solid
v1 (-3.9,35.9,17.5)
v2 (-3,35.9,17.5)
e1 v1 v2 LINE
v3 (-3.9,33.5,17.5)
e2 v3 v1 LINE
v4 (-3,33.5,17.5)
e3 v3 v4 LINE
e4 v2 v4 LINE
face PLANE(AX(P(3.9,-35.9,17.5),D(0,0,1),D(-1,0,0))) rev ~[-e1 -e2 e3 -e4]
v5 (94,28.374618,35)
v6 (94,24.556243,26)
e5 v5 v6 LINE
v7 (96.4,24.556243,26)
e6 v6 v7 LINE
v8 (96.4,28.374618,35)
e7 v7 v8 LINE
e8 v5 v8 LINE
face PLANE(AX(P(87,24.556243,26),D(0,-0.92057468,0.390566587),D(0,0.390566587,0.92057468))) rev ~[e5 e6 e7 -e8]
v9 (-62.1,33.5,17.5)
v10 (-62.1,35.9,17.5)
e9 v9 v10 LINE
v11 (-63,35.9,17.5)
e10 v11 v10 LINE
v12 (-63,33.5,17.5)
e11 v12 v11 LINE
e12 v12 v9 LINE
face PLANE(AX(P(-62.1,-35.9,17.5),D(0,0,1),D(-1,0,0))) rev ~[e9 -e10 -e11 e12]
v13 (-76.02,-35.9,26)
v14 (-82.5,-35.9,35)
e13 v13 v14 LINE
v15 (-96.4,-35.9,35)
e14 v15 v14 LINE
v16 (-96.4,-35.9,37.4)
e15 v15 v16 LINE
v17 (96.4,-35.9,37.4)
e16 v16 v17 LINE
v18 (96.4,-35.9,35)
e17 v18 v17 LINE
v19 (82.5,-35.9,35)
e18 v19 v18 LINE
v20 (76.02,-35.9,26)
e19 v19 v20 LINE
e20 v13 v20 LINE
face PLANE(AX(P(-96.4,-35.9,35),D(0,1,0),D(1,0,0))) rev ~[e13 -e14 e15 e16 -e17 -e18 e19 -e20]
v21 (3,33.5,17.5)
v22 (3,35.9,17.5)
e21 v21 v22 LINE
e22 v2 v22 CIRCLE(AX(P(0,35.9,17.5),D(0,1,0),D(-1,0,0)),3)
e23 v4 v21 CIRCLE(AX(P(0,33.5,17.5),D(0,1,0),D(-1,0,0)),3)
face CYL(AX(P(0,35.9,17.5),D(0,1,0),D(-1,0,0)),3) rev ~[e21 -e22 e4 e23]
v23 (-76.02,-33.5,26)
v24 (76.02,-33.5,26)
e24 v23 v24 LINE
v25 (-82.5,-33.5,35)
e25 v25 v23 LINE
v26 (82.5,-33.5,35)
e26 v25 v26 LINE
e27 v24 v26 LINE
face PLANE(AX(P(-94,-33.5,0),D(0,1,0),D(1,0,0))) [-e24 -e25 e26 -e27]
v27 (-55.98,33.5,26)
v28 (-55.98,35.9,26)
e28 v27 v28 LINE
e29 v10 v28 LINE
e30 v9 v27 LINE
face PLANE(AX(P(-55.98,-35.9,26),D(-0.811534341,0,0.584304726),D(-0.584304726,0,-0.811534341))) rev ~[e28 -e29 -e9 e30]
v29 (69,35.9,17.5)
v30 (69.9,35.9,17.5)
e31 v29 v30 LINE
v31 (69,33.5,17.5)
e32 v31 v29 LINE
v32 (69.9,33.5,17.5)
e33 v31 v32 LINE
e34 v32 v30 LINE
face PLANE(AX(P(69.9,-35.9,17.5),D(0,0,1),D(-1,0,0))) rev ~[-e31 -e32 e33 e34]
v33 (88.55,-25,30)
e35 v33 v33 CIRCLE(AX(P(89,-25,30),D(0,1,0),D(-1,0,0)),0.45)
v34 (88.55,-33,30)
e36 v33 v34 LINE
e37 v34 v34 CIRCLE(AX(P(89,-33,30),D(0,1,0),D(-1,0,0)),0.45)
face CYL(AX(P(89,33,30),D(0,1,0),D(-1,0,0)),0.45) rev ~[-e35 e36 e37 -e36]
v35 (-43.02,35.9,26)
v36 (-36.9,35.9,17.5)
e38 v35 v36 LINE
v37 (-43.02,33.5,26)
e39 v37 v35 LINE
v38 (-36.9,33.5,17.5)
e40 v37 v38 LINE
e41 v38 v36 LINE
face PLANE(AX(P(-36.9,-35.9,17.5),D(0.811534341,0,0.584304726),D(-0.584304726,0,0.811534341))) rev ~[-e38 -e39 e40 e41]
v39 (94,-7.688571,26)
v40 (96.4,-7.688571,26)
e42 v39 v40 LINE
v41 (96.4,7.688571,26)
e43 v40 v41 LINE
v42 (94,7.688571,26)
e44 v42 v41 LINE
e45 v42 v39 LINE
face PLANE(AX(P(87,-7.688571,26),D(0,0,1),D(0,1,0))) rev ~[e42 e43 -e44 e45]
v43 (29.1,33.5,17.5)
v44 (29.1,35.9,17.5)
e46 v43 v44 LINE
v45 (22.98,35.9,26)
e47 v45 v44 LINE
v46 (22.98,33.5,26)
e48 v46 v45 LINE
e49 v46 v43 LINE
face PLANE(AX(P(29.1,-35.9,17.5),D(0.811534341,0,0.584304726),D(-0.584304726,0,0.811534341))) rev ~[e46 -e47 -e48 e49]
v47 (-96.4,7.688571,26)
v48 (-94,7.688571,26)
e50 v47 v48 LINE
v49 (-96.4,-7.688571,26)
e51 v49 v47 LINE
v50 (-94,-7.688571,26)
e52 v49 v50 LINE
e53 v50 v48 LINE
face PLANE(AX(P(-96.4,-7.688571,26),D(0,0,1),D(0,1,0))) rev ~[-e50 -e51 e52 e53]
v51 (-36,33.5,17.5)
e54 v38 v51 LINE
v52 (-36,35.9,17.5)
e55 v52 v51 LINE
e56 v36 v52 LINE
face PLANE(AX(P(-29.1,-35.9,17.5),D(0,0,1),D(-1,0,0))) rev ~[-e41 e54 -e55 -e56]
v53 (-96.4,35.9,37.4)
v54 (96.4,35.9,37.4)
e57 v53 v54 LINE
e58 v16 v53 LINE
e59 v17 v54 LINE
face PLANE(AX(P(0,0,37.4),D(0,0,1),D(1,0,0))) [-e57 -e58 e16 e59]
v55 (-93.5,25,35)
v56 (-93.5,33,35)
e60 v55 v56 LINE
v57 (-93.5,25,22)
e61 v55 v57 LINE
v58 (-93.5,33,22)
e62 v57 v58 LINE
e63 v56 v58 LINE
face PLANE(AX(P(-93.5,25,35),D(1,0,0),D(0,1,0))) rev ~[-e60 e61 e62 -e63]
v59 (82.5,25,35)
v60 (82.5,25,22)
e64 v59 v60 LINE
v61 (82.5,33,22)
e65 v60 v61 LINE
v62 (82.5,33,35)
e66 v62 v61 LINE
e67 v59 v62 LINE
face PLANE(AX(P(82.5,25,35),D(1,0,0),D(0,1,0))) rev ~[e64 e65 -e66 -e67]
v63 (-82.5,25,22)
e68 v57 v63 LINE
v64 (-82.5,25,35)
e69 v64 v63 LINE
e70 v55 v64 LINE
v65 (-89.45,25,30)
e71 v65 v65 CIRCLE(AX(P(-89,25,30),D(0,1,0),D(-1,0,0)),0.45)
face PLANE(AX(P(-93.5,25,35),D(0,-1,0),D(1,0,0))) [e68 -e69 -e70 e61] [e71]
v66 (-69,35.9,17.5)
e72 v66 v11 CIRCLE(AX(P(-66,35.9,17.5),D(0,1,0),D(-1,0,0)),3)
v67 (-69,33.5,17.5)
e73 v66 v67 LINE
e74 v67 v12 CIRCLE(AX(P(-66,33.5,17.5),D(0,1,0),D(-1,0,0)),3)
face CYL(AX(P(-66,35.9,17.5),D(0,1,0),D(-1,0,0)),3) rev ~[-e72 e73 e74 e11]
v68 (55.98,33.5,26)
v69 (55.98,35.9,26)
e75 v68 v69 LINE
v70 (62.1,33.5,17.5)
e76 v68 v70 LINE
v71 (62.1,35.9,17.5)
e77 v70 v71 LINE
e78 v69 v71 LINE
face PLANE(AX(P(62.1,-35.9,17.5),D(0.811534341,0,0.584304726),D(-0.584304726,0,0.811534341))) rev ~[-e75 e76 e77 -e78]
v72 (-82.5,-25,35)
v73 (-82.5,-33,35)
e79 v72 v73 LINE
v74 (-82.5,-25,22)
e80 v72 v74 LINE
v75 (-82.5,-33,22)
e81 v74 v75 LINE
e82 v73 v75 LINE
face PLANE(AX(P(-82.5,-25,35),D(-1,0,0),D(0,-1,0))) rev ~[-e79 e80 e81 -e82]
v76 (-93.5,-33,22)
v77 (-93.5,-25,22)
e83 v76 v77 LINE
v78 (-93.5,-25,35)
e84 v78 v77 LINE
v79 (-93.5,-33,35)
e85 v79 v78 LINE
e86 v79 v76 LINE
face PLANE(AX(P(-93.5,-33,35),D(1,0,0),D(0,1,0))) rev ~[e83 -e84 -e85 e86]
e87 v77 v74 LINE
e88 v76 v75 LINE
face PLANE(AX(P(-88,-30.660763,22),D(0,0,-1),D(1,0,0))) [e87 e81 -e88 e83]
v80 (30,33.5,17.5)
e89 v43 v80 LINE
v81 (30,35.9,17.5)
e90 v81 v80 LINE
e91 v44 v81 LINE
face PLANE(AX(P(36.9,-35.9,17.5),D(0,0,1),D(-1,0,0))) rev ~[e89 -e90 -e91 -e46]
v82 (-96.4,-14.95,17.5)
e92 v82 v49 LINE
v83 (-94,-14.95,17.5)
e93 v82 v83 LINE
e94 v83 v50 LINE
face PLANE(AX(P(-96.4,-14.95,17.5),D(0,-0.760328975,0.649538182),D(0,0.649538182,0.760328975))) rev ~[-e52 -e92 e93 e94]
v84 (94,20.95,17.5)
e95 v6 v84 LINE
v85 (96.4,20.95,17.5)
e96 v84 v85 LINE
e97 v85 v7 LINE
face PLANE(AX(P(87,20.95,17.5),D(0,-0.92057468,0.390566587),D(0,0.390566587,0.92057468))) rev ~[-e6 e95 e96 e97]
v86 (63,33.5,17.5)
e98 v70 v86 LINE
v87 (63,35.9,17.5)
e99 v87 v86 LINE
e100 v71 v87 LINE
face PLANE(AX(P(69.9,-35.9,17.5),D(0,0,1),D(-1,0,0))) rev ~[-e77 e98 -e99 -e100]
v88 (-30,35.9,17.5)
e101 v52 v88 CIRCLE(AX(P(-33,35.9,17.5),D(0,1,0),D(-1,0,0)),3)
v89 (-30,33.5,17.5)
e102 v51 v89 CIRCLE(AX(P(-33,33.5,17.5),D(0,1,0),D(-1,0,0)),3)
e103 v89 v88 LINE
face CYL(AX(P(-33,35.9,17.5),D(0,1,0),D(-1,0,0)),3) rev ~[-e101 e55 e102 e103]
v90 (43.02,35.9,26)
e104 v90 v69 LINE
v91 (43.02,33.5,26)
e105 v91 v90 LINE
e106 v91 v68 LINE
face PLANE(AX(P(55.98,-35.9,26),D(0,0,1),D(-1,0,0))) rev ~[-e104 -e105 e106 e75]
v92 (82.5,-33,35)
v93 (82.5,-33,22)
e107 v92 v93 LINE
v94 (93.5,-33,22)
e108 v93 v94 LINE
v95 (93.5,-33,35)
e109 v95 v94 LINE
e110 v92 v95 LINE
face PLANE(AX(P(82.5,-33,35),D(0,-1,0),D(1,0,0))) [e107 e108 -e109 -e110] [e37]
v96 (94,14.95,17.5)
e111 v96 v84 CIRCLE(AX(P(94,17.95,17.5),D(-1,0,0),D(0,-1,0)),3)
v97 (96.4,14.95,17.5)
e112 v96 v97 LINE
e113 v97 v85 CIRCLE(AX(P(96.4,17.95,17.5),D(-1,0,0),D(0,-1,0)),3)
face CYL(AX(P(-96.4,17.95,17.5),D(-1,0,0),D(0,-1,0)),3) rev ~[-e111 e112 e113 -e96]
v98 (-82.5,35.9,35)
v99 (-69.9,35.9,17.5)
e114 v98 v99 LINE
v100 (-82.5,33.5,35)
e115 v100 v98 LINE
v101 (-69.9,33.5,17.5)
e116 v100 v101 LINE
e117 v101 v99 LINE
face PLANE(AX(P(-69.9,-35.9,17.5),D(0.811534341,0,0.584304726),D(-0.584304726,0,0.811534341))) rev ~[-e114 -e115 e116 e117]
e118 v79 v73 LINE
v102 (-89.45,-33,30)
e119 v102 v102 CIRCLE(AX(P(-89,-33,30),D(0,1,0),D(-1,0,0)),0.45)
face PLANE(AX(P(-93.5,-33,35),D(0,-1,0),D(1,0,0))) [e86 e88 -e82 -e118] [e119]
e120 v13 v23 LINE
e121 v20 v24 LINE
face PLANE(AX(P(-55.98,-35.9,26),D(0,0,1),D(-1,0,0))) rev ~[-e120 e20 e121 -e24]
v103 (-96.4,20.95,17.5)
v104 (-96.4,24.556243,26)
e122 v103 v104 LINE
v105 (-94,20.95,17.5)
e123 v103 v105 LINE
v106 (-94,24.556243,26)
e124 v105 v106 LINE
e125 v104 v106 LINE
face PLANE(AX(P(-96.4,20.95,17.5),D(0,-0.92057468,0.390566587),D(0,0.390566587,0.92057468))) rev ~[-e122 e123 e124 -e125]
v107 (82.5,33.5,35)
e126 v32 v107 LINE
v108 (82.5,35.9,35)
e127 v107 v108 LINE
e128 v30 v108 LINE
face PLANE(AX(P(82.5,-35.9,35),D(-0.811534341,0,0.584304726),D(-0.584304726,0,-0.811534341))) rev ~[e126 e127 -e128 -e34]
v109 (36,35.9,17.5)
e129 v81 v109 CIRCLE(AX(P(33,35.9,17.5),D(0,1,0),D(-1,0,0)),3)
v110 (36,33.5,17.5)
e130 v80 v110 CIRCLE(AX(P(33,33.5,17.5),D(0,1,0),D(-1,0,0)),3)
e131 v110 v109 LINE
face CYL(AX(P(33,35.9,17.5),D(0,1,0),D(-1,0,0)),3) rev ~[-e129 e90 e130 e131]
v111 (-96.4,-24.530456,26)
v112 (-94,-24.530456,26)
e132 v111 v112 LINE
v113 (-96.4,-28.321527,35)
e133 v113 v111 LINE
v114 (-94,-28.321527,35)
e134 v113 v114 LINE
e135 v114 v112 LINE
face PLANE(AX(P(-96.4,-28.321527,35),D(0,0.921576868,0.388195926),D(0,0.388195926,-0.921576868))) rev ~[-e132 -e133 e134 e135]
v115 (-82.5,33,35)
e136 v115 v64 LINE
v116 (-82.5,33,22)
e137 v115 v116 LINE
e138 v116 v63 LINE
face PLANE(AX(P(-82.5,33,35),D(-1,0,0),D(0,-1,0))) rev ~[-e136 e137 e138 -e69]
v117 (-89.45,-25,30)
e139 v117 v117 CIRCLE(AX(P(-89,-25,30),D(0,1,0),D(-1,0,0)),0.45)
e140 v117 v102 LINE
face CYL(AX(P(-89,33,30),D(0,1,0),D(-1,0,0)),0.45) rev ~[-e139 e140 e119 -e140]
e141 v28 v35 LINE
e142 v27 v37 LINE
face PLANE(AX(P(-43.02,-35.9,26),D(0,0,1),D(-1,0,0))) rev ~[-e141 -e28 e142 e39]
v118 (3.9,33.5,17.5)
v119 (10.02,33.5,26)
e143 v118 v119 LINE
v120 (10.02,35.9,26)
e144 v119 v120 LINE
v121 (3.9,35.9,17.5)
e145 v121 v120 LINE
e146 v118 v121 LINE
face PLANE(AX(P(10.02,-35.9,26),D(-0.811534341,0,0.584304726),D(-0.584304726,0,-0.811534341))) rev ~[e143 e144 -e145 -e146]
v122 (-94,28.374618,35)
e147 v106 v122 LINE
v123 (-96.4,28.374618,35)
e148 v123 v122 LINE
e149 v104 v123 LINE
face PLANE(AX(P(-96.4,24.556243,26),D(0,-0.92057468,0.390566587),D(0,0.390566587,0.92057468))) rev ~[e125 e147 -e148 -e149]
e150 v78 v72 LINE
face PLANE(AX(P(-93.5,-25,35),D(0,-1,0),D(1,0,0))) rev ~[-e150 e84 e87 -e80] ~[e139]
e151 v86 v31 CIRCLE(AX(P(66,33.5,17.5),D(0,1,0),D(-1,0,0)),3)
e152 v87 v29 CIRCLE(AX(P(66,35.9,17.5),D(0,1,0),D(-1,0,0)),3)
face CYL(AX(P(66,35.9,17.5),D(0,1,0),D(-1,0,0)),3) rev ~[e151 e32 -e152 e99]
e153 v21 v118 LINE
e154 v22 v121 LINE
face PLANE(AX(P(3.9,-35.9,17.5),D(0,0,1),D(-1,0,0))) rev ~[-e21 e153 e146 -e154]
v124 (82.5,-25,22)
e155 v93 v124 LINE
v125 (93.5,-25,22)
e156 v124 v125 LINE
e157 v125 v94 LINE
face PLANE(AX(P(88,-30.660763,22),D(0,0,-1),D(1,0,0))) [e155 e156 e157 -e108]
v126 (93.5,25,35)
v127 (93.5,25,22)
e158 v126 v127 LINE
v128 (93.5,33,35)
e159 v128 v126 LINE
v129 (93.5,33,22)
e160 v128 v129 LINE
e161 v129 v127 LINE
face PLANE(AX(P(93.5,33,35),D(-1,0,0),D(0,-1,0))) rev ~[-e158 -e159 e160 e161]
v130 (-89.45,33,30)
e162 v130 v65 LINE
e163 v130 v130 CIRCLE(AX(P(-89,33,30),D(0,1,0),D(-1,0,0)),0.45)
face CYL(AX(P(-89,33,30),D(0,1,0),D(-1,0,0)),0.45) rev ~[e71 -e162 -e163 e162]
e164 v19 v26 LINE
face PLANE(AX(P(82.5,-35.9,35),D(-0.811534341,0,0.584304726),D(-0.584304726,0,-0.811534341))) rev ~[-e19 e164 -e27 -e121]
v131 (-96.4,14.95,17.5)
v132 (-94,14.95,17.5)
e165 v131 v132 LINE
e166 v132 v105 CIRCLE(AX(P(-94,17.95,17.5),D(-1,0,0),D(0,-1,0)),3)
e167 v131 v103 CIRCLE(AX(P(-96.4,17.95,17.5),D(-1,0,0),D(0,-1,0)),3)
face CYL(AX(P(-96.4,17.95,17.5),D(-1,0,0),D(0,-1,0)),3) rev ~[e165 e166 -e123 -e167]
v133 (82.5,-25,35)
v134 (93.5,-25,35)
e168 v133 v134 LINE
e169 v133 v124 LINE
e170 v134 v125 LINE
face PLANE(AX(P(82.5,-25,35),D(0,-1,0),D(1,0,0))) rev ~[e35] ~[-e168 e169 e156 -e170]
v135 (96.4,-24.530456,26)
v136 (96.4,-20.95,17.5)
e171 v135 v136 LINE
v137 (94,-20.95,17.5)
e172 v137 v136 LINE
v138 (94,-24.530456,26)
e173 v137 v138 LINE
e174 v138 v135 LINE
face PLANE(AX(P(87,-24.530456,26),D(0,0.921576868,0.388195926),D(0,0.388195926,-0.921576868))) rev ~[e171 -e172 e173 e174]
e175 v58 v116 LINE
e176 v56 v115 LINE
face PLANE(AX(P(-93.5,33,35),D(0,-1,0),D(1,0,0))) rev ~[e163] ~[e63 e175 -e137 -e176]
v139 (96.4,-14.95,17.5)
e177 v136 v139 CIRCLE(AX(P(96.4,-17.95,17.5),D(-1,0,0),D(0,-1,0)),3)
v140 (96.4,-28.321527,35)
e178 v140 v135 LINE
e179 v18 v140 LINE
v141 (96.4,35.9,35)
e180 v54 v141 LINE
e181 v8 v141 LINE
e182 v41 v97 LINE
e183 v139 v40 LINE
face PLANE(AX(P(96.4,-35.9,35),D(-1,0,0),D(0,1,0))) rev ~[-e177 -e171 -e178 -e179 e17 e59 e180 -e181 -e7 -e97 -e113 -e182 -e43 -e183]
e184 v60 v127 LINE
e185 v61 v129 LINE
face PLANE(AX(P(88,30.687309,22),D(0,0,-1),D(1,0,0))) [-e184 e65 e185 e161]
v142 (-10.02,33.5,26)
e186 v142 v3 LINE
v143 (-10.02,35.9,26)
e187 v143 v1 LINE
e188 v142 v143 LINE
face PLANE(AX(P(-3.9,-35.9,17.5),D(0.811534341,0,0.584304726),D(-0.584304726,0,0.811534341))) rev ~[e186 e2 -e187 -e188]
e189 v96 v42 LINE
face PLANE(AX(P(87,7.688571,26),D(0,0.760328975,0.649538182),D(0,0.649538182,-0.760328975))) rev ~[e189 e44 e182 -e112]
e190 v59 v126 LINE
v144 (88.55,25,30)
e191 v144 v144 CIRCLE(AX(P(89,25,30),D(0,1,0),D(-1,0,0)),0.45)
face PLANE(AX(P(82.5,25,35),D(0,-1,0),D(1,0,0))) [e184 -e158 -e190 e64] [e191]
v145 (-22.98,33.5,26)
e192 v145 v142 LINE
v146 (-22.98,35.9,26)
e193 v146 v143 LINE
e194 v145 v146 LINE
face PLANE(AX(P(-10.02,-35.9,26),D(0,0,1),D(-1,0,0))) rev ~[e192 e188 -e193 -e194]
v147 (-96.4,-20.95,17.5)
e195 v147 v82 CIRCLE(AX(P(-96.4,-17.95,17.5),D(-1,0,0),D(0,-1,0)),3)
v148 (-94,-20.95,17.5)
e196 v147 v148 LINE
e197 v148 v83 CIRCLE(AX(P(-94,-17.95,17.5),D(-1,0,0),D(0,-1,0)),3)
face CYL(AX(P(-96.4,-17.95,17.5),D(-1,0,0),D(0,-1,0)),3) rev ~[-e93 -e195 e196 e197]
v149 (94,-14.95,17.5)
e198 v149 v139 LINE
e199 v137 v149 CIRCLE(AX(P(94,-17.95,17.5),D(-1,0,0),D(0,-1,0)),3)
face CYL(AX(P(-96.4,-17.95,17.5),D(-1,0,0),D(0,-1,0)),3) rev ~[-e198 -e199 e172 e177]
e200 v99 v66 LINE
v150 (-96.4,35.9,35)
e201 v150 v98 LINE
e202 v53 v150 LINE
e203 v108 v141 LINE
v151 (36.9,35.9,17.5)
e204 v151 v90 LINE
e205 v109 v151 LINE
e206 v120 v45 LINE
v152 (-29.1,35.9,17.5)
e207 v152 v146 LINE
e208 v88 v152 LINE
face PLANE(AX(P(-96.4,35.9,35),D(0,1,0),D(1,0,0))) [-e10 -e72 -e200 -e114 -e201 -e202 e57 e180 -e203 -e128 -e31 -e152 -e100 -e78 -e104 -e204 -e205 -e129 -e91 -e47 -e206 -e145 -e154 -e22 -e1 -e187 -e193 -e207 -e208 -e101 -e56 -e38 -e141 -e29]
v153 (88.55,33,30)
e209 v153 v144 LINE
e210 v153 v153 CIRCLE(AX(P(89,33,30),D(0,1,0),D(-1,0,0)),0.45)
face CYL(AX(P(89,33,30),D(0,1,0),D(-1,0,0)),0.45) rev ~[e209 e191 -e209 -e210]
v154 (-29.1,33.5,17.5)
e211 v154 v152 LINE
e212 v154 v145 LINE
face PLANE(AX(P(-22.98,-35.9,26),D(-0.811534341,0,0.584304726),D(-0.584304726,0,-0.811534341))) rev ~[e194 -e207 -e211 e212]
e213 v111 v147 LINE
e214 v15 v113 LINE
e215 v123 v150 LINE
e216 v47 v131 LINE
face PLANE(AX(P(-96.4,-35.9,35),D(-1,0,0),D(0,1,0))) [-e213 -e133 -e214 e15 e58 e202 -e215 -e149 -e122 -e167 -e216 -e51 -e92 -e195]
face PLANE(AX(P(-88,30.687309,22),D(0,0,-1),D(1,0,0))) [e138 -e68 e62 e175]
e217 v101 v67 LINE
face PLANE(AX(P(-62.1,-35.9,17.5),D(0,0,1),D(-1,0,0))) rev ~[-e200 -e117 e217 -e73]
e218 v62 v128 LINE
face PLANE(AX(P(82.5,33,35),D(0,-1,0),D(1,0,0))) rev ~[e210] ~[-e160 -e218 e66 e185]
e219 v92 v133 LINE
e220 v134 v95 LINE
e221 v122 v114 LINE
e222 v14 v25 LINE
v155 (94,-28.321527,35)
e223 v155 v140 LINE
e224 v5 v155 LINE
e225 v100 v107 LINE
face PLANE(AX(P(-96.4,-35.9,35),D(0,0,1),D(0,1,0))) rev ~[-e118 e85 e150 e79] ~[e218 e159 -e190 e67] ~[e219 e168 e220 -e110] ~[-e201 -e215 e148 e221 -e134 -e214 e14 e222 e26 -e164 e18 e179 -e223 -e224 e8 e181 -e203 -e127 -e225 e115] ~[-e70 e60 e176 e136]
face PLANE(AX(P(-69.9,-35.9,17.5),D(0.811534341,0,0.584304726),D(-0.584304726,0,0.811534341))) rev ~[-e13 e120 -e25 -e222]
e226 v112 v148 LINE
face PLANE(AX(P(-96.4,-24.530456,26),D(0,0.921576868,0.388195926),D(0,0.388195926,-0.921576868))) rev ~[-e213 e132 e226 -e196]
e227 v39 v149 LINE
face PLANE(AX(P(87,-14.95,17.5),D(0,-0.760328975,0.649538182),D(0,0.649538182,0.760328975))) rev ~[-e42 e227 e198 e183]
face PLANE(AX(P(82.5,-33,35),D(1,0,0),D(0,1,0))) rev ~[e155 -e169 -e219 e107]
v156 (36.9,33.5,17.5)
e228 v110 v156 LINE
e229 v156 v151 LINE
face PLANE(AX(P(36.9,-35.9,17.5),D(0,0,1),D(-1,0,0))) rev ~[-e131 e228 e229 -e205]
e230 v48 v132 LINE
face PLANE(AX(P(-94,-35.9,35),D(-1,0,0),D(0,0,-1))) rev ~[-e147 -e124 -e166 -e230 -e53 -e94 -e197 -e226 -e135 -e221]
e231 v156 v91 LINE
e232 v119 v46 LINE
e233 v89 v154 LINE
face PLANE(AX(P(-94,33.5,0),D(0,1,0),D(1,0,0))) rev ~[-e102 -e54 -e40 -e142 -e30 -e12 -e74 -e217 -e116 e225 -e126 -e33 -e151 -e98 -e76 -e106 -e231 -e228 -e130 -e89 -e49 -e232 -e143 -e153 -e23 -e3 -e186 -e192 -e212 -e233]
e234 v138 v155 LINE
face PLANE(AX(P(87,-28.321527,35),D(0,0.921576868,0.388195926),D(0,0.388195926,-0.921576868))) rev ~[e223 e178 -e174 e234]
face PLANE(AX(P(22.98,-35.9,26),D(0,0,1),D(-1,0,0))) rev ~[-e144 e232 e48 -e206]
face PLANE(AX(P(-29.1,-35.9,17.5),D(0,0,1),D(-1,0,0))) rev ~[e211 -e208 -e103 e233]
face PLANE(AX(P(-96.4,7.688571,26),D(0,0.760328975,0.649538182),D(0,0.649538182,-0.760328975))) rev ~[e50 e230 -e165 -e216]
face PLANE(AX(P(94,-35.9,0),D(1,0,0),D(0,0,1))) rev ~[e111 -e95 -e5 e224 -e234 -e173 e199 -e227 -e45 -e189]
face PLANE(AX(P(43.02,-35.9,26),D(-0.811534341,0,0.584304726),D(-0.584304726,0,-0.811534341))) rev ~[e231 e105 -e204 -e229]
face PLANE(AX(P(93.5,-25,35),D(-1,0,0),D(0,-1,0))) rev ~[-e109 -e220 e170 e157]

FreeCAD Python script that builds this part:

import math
import FreeCAD as App
import Part
import Sketcher
from FreeCAD import Vector

doc = App.newDocument("Part")
params = doc.addObject("Spreadsheet::Sheet", "Params")
for row, (alias, value) in enumerate([
    ("sketch1_width", "188 mm"),
    ("sketch1_height", "67 mm"),
    ("sketch1_width2", "192.8 mm"),
    ("sketch1_height2", "71.8 mm"),
    ("pad1_length", "35 mm"),
    ("sketch2_diameter", "6 mm"),
    ("sketch3_diameter", "7.8 mm"),
    ("pocket2_length", "25 mm"),
    ("sketch4_diameter", "6 mm"),
    ("pocket3_length", "25 mm"),
    ("sketch5_width", "192.8 mm"),
    ("sketch5_height", "71.8 mm"),
    ("pad2_length", "2.4 mm"),
    ("sketch6_width", "188 mm"),
    ("sketch6_height", "35 mm"),
    ("sketch6_width2", "11.5 mm"),
    ("sketch6_width3", "7.8 mm"),
    ("sketch6_width4", "12.96 mm"),
    ("sketch7_radius", "3 mm"),
    ("sketch7_height", "35 mm"),
    ("sketch7_width", "71.8 mm"),
    ("pocket5_length", "5 mm"),
    ("sketch8_radius", "3 mm"),
    ("sketch8_height", "35 mm"),
    ("sketch8_width", "71.8 mm"),
    ("pocket6_length", "21.3 mm"),
    ("sketch9_width", "11 mm"),
    ("sketch9_height", "8 mm"),
    ("pad3_length", "13 mm"),
    ("sketch10_radius", "3.9 mm"),
    ("sketch10_width", "20.04 mm"),
    ("pocket7_length", "25 mm"),
    ("sketch11_diameter", "0.9 mm"),
], start=1):
    params.set(f"A{row}", alias)
    params.set(f"B{row}", "=" + value)
    params.setAlias(f"B{row}", alias)

body = doc.addObject("PartDesign::Body", "Body")

# Sketch on XY plane
sketch1 = body.newObject("Sketcher::SketchObject", "Sketch")
sketch1.AttachmentSupport = (doc.getObject("XY_Plane"), [""])
sketch1.MapMode = "FlatFace"
sketch1.addGeometry([
    Part.LineSegment(Vector(-96, 36, 0), Vector(-96, -36, 0)),  # 0
    Part.LineSegment(Vector(-96, -36, 0), Vector(96, -36, 0)),  # 1
    Part.LineSegment(Vector(96, -36, 0), Vector(96, 36, 0)),  # 2
    Part.LineSegment(Vector(96, 36, 0), Vector(-96, 36, 0)),  # 3
    Part.LineSegment(Vector(94, -34, 0), Vector(-94, -34, 0)),  # 4
    Part.LineSegment(Vector(-94, -34, 0), Vector(-94, 34, 0)),  # 5
    Part.LineSegment(Vector(-94, 34, 0), Vector(94, 34, 0)),  # 6
    Part.LineSegment(Vector(94, 34, 0), Vector(94, -34, 0)),  # 7
], False)
sketch1.addConstraint([
    Sketcher.Constraint("Coincident", 0, 2, 1, 1),
    Sketcher.Constraint("Coincident", 1, 2, 2, 1),
    Sketcher.Constraint("Coincident", 2, 2, 3, 1),
    Sketcher.Constraint("Coincident", 3, 2, 0, 1),
    Sketcher.Constraint("Coincident", 4, 2, 5, 1),
    Sketcher.Constraint("Coincident", 5, 2, 6, 1),
    Sketcher.Constraint("Coincident", 6, 2, 7, 1),
    Sketcher.Constraint("Coincident", 7, 2, 4, 1),
    Sketcher.Constraint("Vertical", 0),
    Sketcher.Constraint("Horizontal", 1),
    Sketcher.Constraint("Vertical", 2),
    Sketcher.Constraint("Horizontal", 3),
    Sketcher.Constraint("Horizontal", 4),
    Sketcher.Constraint("Vertical", 5),
    Sketcher.Constraint("Horizontal", 6),
    Sketcher.Constraint("Vertical", 7),
    Sketcher.Constraint("Symmetric", 0, 2, 2, 2, -1, 1),
    Sketcher.Constraint("Symmetric", 4, 2, 6, 2, -1, 1),
    Sketcher.Constraint("DistanceX", 4, 2, 4, 1, 188.0),
    Sketcher.Constraint("DistanceY", 5, 1, 5, 2, 67.0),
    Sketcher.Constraint("DistanceX", 1, 1, 1, 2, 192.8),
    Sketcher.Constraint("DistanceY", 0, 2, 0, 1, 71.8),
])
sketch1.setExpression("Constraints[18]", "Params.sketch1_width")
sketch1.setExpression("Constraints[19]", "Params.sketch1_height")
sketch1.setExpression("Constraints[20]", "Params.sketch1_width2")
sketch1.setExpression("Constraints[21]", "Params.sketch1_height2")
pad1 = body.newObject("PartDesign::Pad", "Pad")
pad1.Profile = sketch1
pad1.setExpression("Length", "Params.pad1_length")

# Sketch on YZ plane
sketch2 = body.newObject("Sketcher::SketchObject", "Sketch001")
sketch2.AttachmentSupport = (doc.getObject("YZ_Plane"), [""])
sketch2.MapMode = "FlatFace"
sketch2.AttachmentOffset = App.Placement(Vector(0, 0, -96.4), App.Rotation())
sketch2.addGeometry([
    Part.Circle(Vector(17.9, 17.5, 0), Vector(0, 0, 1), 3),
    Part.Circle(Vector(-17.9, 17.5, 0), Vector(0, 0, 1), 3),
], False)
sketch2.addConstraint([
    Sketcher.Constraint("Equal", 0, 1),
    Sketcher.Constraint("Symmetric", 0, 3, 1, 3, -2),
    Sketcher.Constraint("Diameter", 0, 6.0),
    Sketcher.Constraint("DistanceY", -1, 1, 0, 3, 17.5),
    Sketcher.Constraint("DistanceX", 1, 3, 0, 3, 35.9),
])
sketch2.setExpression("Constraints[2]", "Params.sketch2_diameter")
pocket1 = body.newObject("PartDesign::Pocket", "Pocket")
pocket1.Profile = sketch2
pocket1.Type = "ThroughAll"
pocket1.Reversed = True

# Sketch on XZ plane
sketch3 = body.newObject("Sketcher::SketchObject", "Sketch002")
sketch3.AttachmentSupport = (doc.getObject("XZ_Plane"), [""])
sketch3.MapMode = "FlatFace"
sketch3.AttachmentOffset = App.Placement(Vector(0, 0, 35.9), App.Rotation())
sketch3.addGeometry([
    Part.Circle(Vector(0, 17.5, 0), Vector(0, 0, 1), 3.9),  # 0
    Part.Circle(Vector(33, 17.5, 0), Vector(0, 0, 1), 3.9),  # 1
    Part.Circle(Vector(66, 17.5, 0), Vector(0, 0, 1), 3.9),  # 2
    Part.Circle(Vector(-33, 17.5, 0), Vector(0, 0, 1), 3.9),  # 3
    Part.Circle(Vector(-66, 17.5, 0), Vector(0, 0, 1), 3.9),  # 4
], False)
sketch3.addConstraint([
    Sketcher.Constraint("Equal", 0, 1),
    Sketcher.Constraint("Equal", 1, 2),
    Sketcher.Constraint("Equal", 2, 3),
    Sketcher.Constraint("Equal", 3, 4),
    Sketcher.Constraint("Symmetric", 1, 3, 3, 3, -2),
    Sketcher.Constraint("Symmetric", 2, 3, 4, 3, -2),
    Sketcher.Constraint("PointOnObject", 0, 3, -2),
    Sketcher.Constraint("Horizontal", 0, 3, 1, 3),
    Sketcher.Constraint("Horizontal", 1, 3, 2, 3),
    Sketcher.Constraint("Diameter", 0, 7.8),
    Sketcher.Constraint("DistanceX", -1, 1, 1, 3, 33.0),
    Sketcher.Constraint("DistanceX", -1, 1, 2, 3, 66.0),
    Sketcher.Constraint("DistanceY", -1, 1, 0, 3, 17.5),
])
sketch3.setExpression("Constraints[9]", "Params.sketch3_diameter")
pocket2 = body.newObject("PartDesign::Pocket", "Pocket001")
pocket2.Profile = sketch3
pocket2.setExpression("Length", "Params.pocket2_length")

# Sketch on XZ plane
sketch4 = body.newObject("Sketcher::SketchObject", "Sketch003")
sketch4.AttachmentSupport = (doc.getObject("XZ_Plane"), [""])
sketch4.MapMode = "FlatFace"
sketch4.AttachmentOffset = App.Placement(Vector(0, 0, -35.9), App.Rotation())
sketch4.addGeometry([
    Part.Circle(Vector(0, 17.5, 0), Vector(0, 0, 1), 3),  # 0
    Part.Circle(Vector(-33, 17.5, 0), Vector(0, 0, 1), 3),  # 1
    Part.Circle(Vector(-66, 17.5, 0), Vector(0, 0, 1), 3),  # 2
    Part.Circle(Vector(33, 17.5, 0), Vector(0, 0, 1), 3),  # 3
    Part.Circle(Vector(66, 17.5, 0), Vector(0, 0, 1), 3),  # 4
], False)
sketch4.addConstraint([
    Sketcher.Constraint("Equal", 0, 1),
    Sketcher.Constraint("Equal", 1, 2),
    Sketcher.Constraint("Equal", 2, 3),
    Sketcher.Constraint("Equal", 3, 4),
    Sketcher.Constraint("Symmetric", 1, 3, 3, 3, -2),
    Sketcher.Constraint("Symmetric", 2, 3, 4, 3, -2),
    Sketcher.Constraint("PointOnObject", 0, 3, -2),
    Sketcher.Constraint("Horizontal", 0, 3, 1, 3),
    Sketcher.Constraint("Horizontal", 1, 3, 2, 3),
    Sketcher.Constraint("Diameter", 0, 6.0),
    Sketcher.Constraint("DistanceX", 1, 3, -1, 1, 33.0),
    Sketcher.Constraint("DistanceX", 2, 3, -1, 1, 66.0),
    Sketcher.Constraint("DistanceY", -1, 1, 0, 3, 17.5),
])
sketch4.setExpression("Constraints[9]", "Params.sketch4_diameter")
pocket3 = body.newObject("PartDesign::Pocket", "Pocket002")
pocket3.Profile = sketch4
pocket3.setExpression("Length", "Params.pocket3_length")
pocket3.Reversed = True

# Sketch on XY plane
sketch5 = body.newObject("Sketcher::SketchObject", "Sketch004")
sketch5.AttachmentSupport = (doc.getObject("XY_Plane"), [""])
sketch5.MapMode = "FlatFace"
sketch5.AttachmentOffset = App.Placement(Vector(0, 0, 35), App.Rotation())
sketch5.addGeometry([
    Part.LineSegment(Vector(-96, 36, 0), Vector(-96, -36, 0)),
    Part.LineSegment(Vector(-96, -36, 0), Vector(96, -36, 0)),
    Part.LineSegment(Vector(96, -36, 0), Vector(96, 36, 0)),
    Part.LineSegment(Vector(96, 36, 0), Vector(-96, 36, 0)),
], False)
sketch5.addConstraint([
    Sketcher.Constraint("Coincident", 0, 2, 1, 1),
    Sketcher.Constraint("Coincident", 1, 2, 2, 1),
    Sketcher.Constraint("Coincident", 2, 2, 3, 1),
    Sketcher.Constraint("Coincident", 3, 2, 0, 1),
    Sketcher.Constraint("Vertical", 0),
    Sketcher.Constraint("Horizontal", 1),
    Sketcher.Constraint("Vertical", 2),
    Sketcher.Constraint("Horizontal", 3),
    Sketcher.Constraint("Symmetric", 0, 2, 2, 2, -1, 1),
    Sketcher.Constraint("DistanceX", 1, 1, 1, 2, 192.8),
    Sketcher.Constraint("DistanceY", 0, 2, 0, 1, 71.8),
])
sketch5.setExpression("Constraints[9]", "Params.sketch5_width")
sketch5.setExpression("Constraints[10]", "Params.sketch5_height")
pad2 = body.newObject("PartDesign::Pad", "Pad001")
pad2.Profile = sketch5
pad2.setExpression("Length", "Params.pad2_length")

# Sketch on XZ plane
sketch6 = body.newObject("Sketcher::SketchObject", "Sketch005")
sketch6.AttachmentSupport = (doc.getObject("XZ_Plane"), [""])
sketch6.MapMode = "FlatFace"
sketch6.AttachmentOffset = App.Placement(Vector(0, 0, 35.9), App.Rotation())
sketch6.addGeometry([
    Part.LineSegment(Vector(-70, 18, 0), Vector(-82, 35, 0)),  # 0
    Part.LineSegment(Vector(-82, 35, 0), Vector(-94, 35, 0)),  # 1
    Part.LineSegment(Vector(-94, 35, 0), Vector(-94, 0, 0)),  # 2
    Part.LineSegment(Vector(-94, 0, 0), Vector(94, 0, 0)),  # 3
    Part.LineSegment(Vector(94, 0, 0), Vector(94, 35, 0)),  # 4
    Part.LineSegment(Vector(94, 35, 0), Vector(82, 35, 0)),  # 5
    Part.LineSegment(Vector(82, 35, 0), Vector(70, 18, 0)),  # 6
    Part.LineSegment(Vector(70, 18, 0), Vector(62, 18, 0)),  # 7
    Part.LineSegment(Vector(62, 18, 0), Vector(56, 26, 0)),  # 8
    Part.LineSegment(Vector(56, 26, 0), Vector(43, 26, 0)),  # 9
    Part.LineSegment(Vector(43, 26, 0), Vector(37, 18, 0)),  # 10
    Part.LineSegment(Vector(37, 18, 0), Vector(29, 18, 0)),  # 11
    Part.LineSegment(Vector(29, 18, 0), Vector(23, 26, 0)),  # 12
    Part.LineSegment(Vector(23, 26, 0), Vector(10, 26, 0)),  # 13
    Part.LineSegment(Vector(10, 26, 0), Vector(4, 18, 0)),  # 14
    Part.LineSegment(Vector(4, 18, 0), Vector(-4, 18, 0)),  # 15
    Part.LineSegment(Vector(-4, 18, 0), Vector(-10, 26, 0)),  # 16
    Part.LineSegment(Vector(-10, 26, 0), Vector(-23, 26, 0)),  # 17
    Part.LineSegment(Vector(-23, 26, 0), Vector(-29, 18, 0)),  # 18
    Part.LineSegment(Vector(-29, 18, 0), Vector(-37, 18, 0)),  # 19
    Part.LineSegment(Vector(-37, 18, 0), Vector(-43, 26, 0)),  # 20
    Part.LineSegment(Vector(-43, 26, 0), Vector(-56, 26, 0)),  # 21
    Part.LineSegment(Vector(-56, 26, 0), Vector(-62, 18, 0)),  # 22
    Part.LineSegment(Vector(-62, 18, 0), Vector(-70, 18, 0)),  # 23
], False)
sketch6.addConstraint([
    Sketcher.Constraint("Coincident", 0, 2, 1, 1),
    Sketcher.Constraint("Coincident", 1, 2, 2, 1),
    Sketcher.Constraint("Coincident", 2, 2, 3, 1),
    Sketcher.Constraint("Coincident", 3, 2, 4, 1),
    Sketcher.Constraint("Coincident", 4, 2, 5, 1),
    Sketcher.Constraint("Coincident", 5, 2, 6, 1),
    Sketcher.Constraint("Coincident", 6, 2, 7, 1),
    Sketcher.Constraint("Coincident", 7, 2, 8, 1),
    Sketcher.Constraint("Coincident", 8, 2, 9, 1),
    Sketcher.Constraint("Coincident", 9, 2, 10, 1),
    Sketcher.Constraint("Coincident", 10, 2, 11, 1),
    Sketcher.Constraint("Coincident", 11, 2, 12, 1),
    Sketcher.Constraint("Coincident", 12, 2, 13, 1),
    Sketcher.Constraint("Coincident", 13, 2, 14, 1),
    Sketcher.Constraint("Coincident", 14, 2, 15, 1),
    Sketcher.Constraint("Coincident", 15, 2, 16, 1),
    Sketcher.Constraint("Coincident", 16, 2, 17, 1),
    Sketcher.Constraint("Coincident", 17, 2, 18, 1),
    Sketcher.Constraint("Coincident", 18, 2, 19, 1),
    Sketcher.Constraint("Coincident", 19, 2, 20, 1),
    Sketcher.Constraint("Coincident", 20, 2, 21, 1),
    Sketcher.Constraint("Coincident", 21, 2, 22, 1),
    Sketcher.Constraint("Coincident", 22, 2, 23, 1),
    Sketcher.Constraint("Coincident", 23, 2, 0, 1),
    Sketcher.Constraint("Horizontal", 1),
    Sketcher.Constraint("Vertical", 2),
    Sketcher.Constraint("Horizontal", 3),
    Sketcher.Constraint("Vertical", 4),
    Sketcher.Constraint("Horizontal", 5),
    Sketcher.Constraint("Horizontal", 7),
    Sketcher.Constraint("Horizontal", 9),
    Sketcher.Constraint("Horizontal", 11),
    Sketcher.Constraint("Horizontal", 13),
    Sketcher.Constraint("Horizontal", 15),
    Sketcher.Constraint("Horizontal", 17),
    Sketcher.Constraint("Horizontal", 19),
    Sketcher.Constraint("Horizontal", 21),
    Sketcher.Constraint("Horizontal", 23),
    Sketcher.Constraint("Symmetric", 2, 2, 3, 2, -1, 1),
    Sketcher.Constraint("Symmetric", 0, 2, 5, 2, -2),
    Sketcher.Constraint("Symmetric", 13, 2, 16, 2, -2),
    Sketcher.Constraint("Symmetric", 11, 2, 18, 2, -2),
    Sketcher.Constraint("Symmetric", 9, 2, 20, 2, -2),
    Sketcher.Constraint("Symmetric", 7, 2, 22, 2, -2),
    Sketcher.Constraint("Parallel", 0, 8),
    Sketcher.Constraint("Parallel", 6, 10),
    Sketcher.Constraint("Parallel", 8, 12),
    Sketcher.Constraint("Parallel", 10, 14),
    Sketcher.Constraint("Parallel", 12, 16),
    Sketcher.Constraint("Parallel", 14, 18),
    Sketcher.Constraint("Parallel", 16, 20),
    Sketcher.Constraint("Parallel", 18, 22),
    Sketcher.Constraint("Horizontal", 7, 2, 10, 2),
    Sketcher.Constraint("Horizontal", 9, 2, 12, 2),
    Sketcher.Constraint("Horizontal", 11, 2, 14, 2),
    Sketcher.Constraint("Equal", 7, 11),
    Sketcher.Constraint("Equal", 9, 13),
    Sketcher.Constraint("Equal", 11, 15),
    Sketcher.Constraint("Equal", 13, 17),
    Sketcher.Constraint("DistanceX", 3, 1, 3, 2, 188.0),
    Sketcher.Constraint("DistanceY", 2, 2, 2, 1, 35.0),
    Sketcher.Constraint("DistanceX", 1, 2, 1, 1, 11.5),
    Sketcher.Constraint("DistanceX", 7, 2, 7, 1, 7.8),
    Sketcher.Constraint("DistanceY", -1, 1, 8, 2, 26.0),
    Sketcher.Constraint("DistanceX", 10, 2, 6, 2, 33.0),
    Sketcher.Constraint("DistanceX", 9, 2, 9, 1, 12.96),
])
sketch6.setExpression("Constraints[59]", "Params.sketch6_width")
sketch6.setExpression("Constraints[60]", "Params.sketch6_height")
sketch6.setExpression("Constraints[61]", "Params.sketch6_width2")
sketch6.setExpression("Constraints[62]", "Params.sketch6_width3")
sketch6.setExpression("Constraints[65]", "Params.sketch6_width4")
pocket4 = body.newObject("PartDesign::Pocket", "Pocket003")
pocket4.Profile = sketch6
pocket4.Type = "ThroughAll"

# Sketch on YZ plane
sketch7 = body.newObject("Sketcher::SketchObject", "Sketch006")
sketch7.AttachmentSupport = (doc.getObject("YZ_Plane"), [""])
sketch7.MapMode = "FlatFace"
sketch7.AttachmentOffset = App.Placement(Vector(0, 0, -96.4), App.Rotation())
sketch7.addGeometry([
    Part.LineSegment(Vector(20.9, 17.5, 0), Vector(24.6, 26, 0)),  # 0
    Part.LineSegment(Vector(24.6, 26, 0), Vector(28.4, 35, 0)),  # 1
    Part.LineSegment(Vector(28.4, 35, 0), Vector(35.9, 35, 0)),  # 2
    Part.LineSegment(Vector(35.9, 35, 0), Vector(35.9, 0, 0)),  # 3
    Part.LineSegment(Vector(35.9, 0, 0), Vector(-35.9, 0, 0)),  # 4
    Part.LineSegment(Vector(-35.9, 0, 0), Vector(-35.9, 35, 0)),  # 5
    Part.LineSegment(Vector(-35.9, 35, 0), Vector(-28.3, 35, 0)),  # 6
    Part.LineSegment(Vector(-28.3, 35, 0), Vector(-24.5, 26, 0)),  # 7
    Part.LineSegment(Vector(-24.5, 26, 0), Vector(-20.9, 17.5, 0)),  # 8
    Part.ArcOfCircle(Part.Circle(Vector(-17.9, 17.5, 0), Vector(0, 0, 1), 3), math.radians(180), math.radians(360)),  # 9
    Part.LineSegment(Vector(-14.9, 17.5, 0), Vector(-7.7, 26, 0)),  # 10
    Part.LineSegment(Vector(-7.7, 26, 0), Vector(7.7, 26, 0)),  # 11
    Part.LineSegment(Vector(7.7, 26, 0), Vector(14.9, 17.5, 0)),  # 12
    Part.ArcOfCircle(Part.Circle(Vector(17.9, 17.5, 0), Vector(0, 0, 1), 3), math.radians(180), math.radians(360)),  # 13
], False)
sketch7.addConstraint([
    Sketcher.Constraint("Coincident", 0, 2, 1, 1),
    Sketcher.Constraint("Coincident", 1, 2, 2, 1),
    Sketcher.Constraint("Coincident", 2, 2, 3, 1),
    Sketcher.Constraint("Coincident", 3, 2, 4, 1),
    Sketcher.Constraint("Coincident", 4, 2, 5, 1),
    Sketcher.Constraint("Coincident", 5, 2, 6, 1),
    Sketcher.Constraint("Coincident", 6, 2, 7, 1),
    Sketcher.Constraint("Coincident", 7, 2, 8, 1),
    Sketcher.Constraint("Coincident", 8, 2, 9, 1),
    Sketcher.Constraint("Coincident", 9, 2, 10, 1),
    Sketcher.Constraint("Coincident", 10, 2, 11, 1),
    Sketcher.Constraint("Coincident", 11, 2, 12, 1),
    Sketcher.Constraint("Coincident", 12, 2, 13, 1),
    Sketcher.Constraint("Coincident", 13, 2, 0, 1),
    Sketcher.Constraint("Horizontal", 2),
    Sketcher.Constraint("Vertical", 3),
    Sketcher.Constraint("Horizontal", 4),
    Sketcher.Constraint("Vertical", 5),
    Sketcher.Constraint("Horizontal", 6),
    Sketcher.Constraint("Horizontal", 11),
    Sketcher.Constraint("Equal", 9, 13),
    Sketcher.Constraint("Symmetric", 3, 2, 4, 2, -1, 1),
    Sketcher.Constraint("Symmetric", 9, 3, 13, 3, -2),
    Sketcher.Constraint("Parallel", 0, 1),
    Sketcher.Constraint("Parallel", 7, 8),
    Sketcher.Constraint("Horizontal", 2, 2, 5, 2),
    Sketcher.Constraint("Horizontal", 0, 2, 7, 2),
    Sketcher.Constraint("Horizontal", 13, 3, 8, 2),
    Sketcher.Constraint("Horizontal", 8, 2, 9, 2),
    Sketcher.Constraint("Horizontal", 7, 2, 10, 2),
    Sketcher.Constraint("Horizontal", 9, 2, 12, 2),
    Sketcher.Constraint("Horizontal", 12, 2, 13, 2),
    Sketcher.Constraint("Equal", 10, 12),
    Sketcher.Constraint("Radius", 9, 3.0),
    Sketcher.Constraint("DistanceY", 3, 2, 3, 1, 35.0),
    Sketcher.Constraint("DistanceX", 4, 2, 4, 1, 71.8),
    Sketcher.Constraint("DistanceY", -1, 1, 0, 2, 26.0),
    Sketcher.Constraint("DistanceY", -1, 1, 9, 3, 17.5),
    Sketcher.Constraint("DistanceX", 9, 3, 13, 3, 35.9),
    Sketcher.Constraint("Distance", 1, 9.776502),
    Sketcher.Constraint("Distance", 7, 9.76587),
    Sketcher.Constraint("Distance", 10, 11.179371),
])
sketch7.setExpression("Constraints[33]", "Params.sketch7_radius")
sketch7.setExpression("Constraints[34]", "Params.sketch7_height")
sketch7.setExpression("Constraints[35]", "Params.sketch7_width")
pocket5 = body.newObject("PartDesign::Pocket", "Pocket004")
pocket5.Profile = sketch7
pocket5.setExpression("Length", "Params.pocket5_length")
pocket5.Reversed = True

# Sketch on YZ plane
sketch8 = body.newObject("Sketcher::SketchObject", "Sketch007")
sketch8.AttachmentSupport = (doc.getObject("YZ_Plane"), [""])
sketch8.MapMode = "FlatFace"
sketch8.AttachmentOffset = App.Placement(Vector(0, 0, 87), App.Rotation())
sketch8.addGeometry([
    Part.LineSegment(Vector(24.6, 26, 0), Vector(28.4, 35, 0)),  # 0
    Part.LineSegment(Vector(28.4, 35, 0), Vector(35.9, 35, 0)),  # 1
    Part.LineSegment(Vector(35.9, 35, 0), Vector(35.9, 0, 0)),  # 2
    Part.LineSegment(Vector(35.9, 0, 0), Vector(-35.9, 0, 0)),  # 3
    Part.LineSegment(Vector(-35.9, 0, 0), Vector(-35.9, 35, 0)),  # 4
    Part.LineSegment(Vector(-35.9, 35, 0), Vector(-28.3, 35, 0)),  # 5
    Part.LineSegment(Vector(-28.3, 35, 0), Vector(-24.5, 26, 0)),  # 6
    Part.LineSegment(Vector(-24.5, 26, 0), Vector(-20.9, 17.5, 0)),  # 7
    Part.ArcOfCircle(Part.Circle(Vector(-17.9, 17.5, 0), Vector(0, 0, 1), 3), math.radians(180), math.radians(360)),  # 8
    Part.LineSegment(Vector(-14.9, 17.5, 0), Vector(-7.7, 26, 0)),  # 9
    Part.LineSegment(Vector(-7.7, 26, 0), Vector(7.7, 26, 0)),  # 10
    Part.LineSegment(Vector(7.7, 26, 0), Vector(14.9, 17.5, 0)),  # 11
    Part.ArcOfCircle(Part.Circle(Vector(17.9, 17.5, 0), Vector(0, 0, 1), 3), math.radians(180), math.radians(360)),  # 12
    Part.LineSegment(Vector(20.9, 17.5, 0), Vector(24.6, 26, 0)),  # 13
], False)
sketch8.addConstraint([
    Sketcher.Constraint("Coincident", 0, 2, 1, 1),
    Sketcher.Constraint("Coincident", 1, 2, 2, 1),
    Sketcher.Constraint("Coincident", 2, 2, 3, 1),
    Sketcher.Constraint("Coincident", 3, 2, 4, 1),
    Sketcher.Constraint("Coincident", 4, 2, 5, 1),
    Sketcher.Constraint("Coincident", 5, 2, 6, 1),
    Sketcher.Constraint("Coincident", 6, 2, 7, 1),
    Sketcher.Constraint("Coincident", 7, 2, 8, 1),
    Sketcher.Constraint("Coincident", 8, 2, 9, 1),
    Sketcher.Constraint("Coincident", 9, 2, 10, 1),
    Sketcher.Constraint("Coincident", 10, 2, 11, 1),
    Sketcher.Constraint("Coincident", 11, 2, 12, 1),
    Sketcher.Constraint("Coincident", 12, 2, 13, 1),
    Sketcher.Constraint("Coincident", 13, 2, 0, 1),
    Sketcher.Constraint("Horizontal", 1),
    Sketcher.Constraint("Vertical", 2),
    Sketcher.Constraint("Horizontal", 3),
    Sketcher.Constraint("Vertical", 4),
    Sketcher.Constraint("Horizontal", 5),
    Sketcher.Constraint("Horizontal", 10),
    Sketcher.Constraint("Equal", 8, 12),
    Sketcher.Constraint("Symmetric", 2, 2, 3, 2, -1, 1),
    Sketcher.Constraint("Symmetric", 8, 3, 12, 3, -2),
    Sketcher.Constraint("Parallel", 6, 7),
    Sketcher.Constraint("Parallel", 0, 13),
    Sketcher.Constraint("Horizontal", 1, 2, 4, 2),
    Sketcher.Constraint("Horizontal", 12, 3, 7, 2),
    Sketcher.Constraint("Horizontal", 7, 2, 8, 2),
    Sketcher.Constraint("Horizontal", 6, 2, 9, 2),
    Sketcher.Constraint("Horizontal", 8, 2, 11, 2),
    Sketcher.Constraint("Horizontal", 11, 2, 12, 2),
    Sketcher.Constraint("Horizontal", 10, 2, 13, 2),
    Sketcher.Constraint("Equal", 9, 11),
    Sketcher.Constraint("Radius", 8, 3.0),
    Sketcher.Constraint("DistanceY", 2, 2, 2, 1, 35.0),
    Sketcher.Constraint("DistanceX", 3, 2, 3, 1, 71.8),
    Sketcher.Constraint("DistanceY", -1, 1, 6, 2, 26.0),
    Sketcher.Constraint("DistanceY", -1, 1, 8, 3, 17.5),
    Sketcher.Constraint("DistanceX", 8, 3, 12, 3, 35.9),
    Sketcher.Constraint("Distance", 0, 9.776502),
    Sketcher.Constraint("Distance", 6, 9.76587),
    Sketcher.Constraint("Distance", 9, 11.179371),
])
sketch8.setExpression("Constraints[33]", "Params.sketch8_radius")
sketch8.setExpression("Constraints[34]", "Params.sketch8_height")
sketch8.setExpression("Constraints[35]", "Params.sketch8_width")
pocket6 = body.newObject("PartDesign::Pocket", "Pocket005")
pocket6.Profile = sketch8
pocket6.setExpression("Length", "Params.pocket6_length")
pocket6.Reversed = True

# Sketch on XY plane
sketch9 = body.newObject("Sketcher::SketchObject", "Sketch008")
sketch9.AttachmentSupport = (doc.getObject("XY_Plane"), [""])
sketch9.MapMode = "FlatFace"
sketch9.AttachmentOffset = App.Placement(Vector(0, 0, 35), App.Rotation())
sketch9.addGeometry([
    Part.LineSegment(Vector(-82, -33, 0), Vector(-94, -33, 0)),  # 0
    Part.LineSegment(Vector(-94, -33, 0), Vector(-94, -25, 0)),  # 1
    Part.LineSegment(Vector(-94, -25, 0), Vector(-82, -25, 0)),  # 2
    Part.LineSegment(Vector(-82, -25, 0), Vector(-82, -33, 0)),  # 3
    Part.LineSegment(Vector(-94, 33, 0), Vector(-82, 33, 0)),  # 4
    Part.LineSegment(Vector(-82, 33, 0), Vector(-82, 25, 0)),  # 5
    Part.LineSegment(Vector(-82, 25, 0), Vector(-94, 25, 0)),  # 6
    Part.LineSegment(Vector(-94, 25, 0), Vector(-94, 33, 0)),  # 7
    Part.LineSegment(Vector(82, 33, 0), Vector(94, 33, 0)),  # 8
    Part.LineSegment(Vector(94, 33, 0), Vector(94, 25, 0)),  # 9
    Part.LineSegment(Vector(94, 25, 0), Vector(82, 25, 0)),  # 10
    Part.LineSegment(Vector(82, 25, 0), Vector(82, 33, 0)),  # 11
    Part.LineSegment(Vector(82, -33, 0), Vector(82, -25, 0)),  # 12
    Part.LineSegment(Vector(82, -25, 0), Vector(94, -25, 0)),  # 13
    Part.LineSegment(Vector(94, -25, 0), Vector(94, -33, 0)),  # 14
    Part.LineSegment(Vector(94, -33, 0), Vector(82, -33, 0)),  # 15
], False)
sketch9.addConstraint([
    Sketcher.Constraint("Coincident", 0, 2, 1, 1),
    Sketcher.Constraint("Coincident", 1, 2, 2, 1),
    Sketcher.Constraint("Coincident", 2, 2, 3, 1),
    Sketcher.Constraint("Coincident", 3, 2, 0, 1),
    Sketcher.Constraint("Coincident", 4, 2, 5, 1),
    Sketcher.Constraint("Coincident", 5, 2, 6, 1),
    Sketcher.Constraint("Coincident", 6, 2, 7, 1),
    Sketcher.Constraint("Coincident", 7, 2, 4, 1),
    Sketcher.Constraint("Coincident", 8, 2, 9, 1),
    Sketcher.Constraint("Coincident", 9, 2, 10, 1),
    Sketcher.Constraint("Coincident", 10, 2, 11, 1),
    Sketcher.Constraint("Coincident", 11, 2, 8, 1),
    Sketcher.Constraint("Coincident", 12, 2, 13, 1),
    Sketcher.Constraint("Coincident", 13, 2, 14, 1),
    Sketcher.Constraint("Coincident", 14, 2, 15, 1),
    Sketcher.Constraint("Coincident", 15, 2, 12, 1),
    Sketcher.Constraint("Horizontal", 0),
    Sketcher.Constraint("Vertical", 1),
    Sketcher.Constraint("Horizontal", 2),
    Sketcher.Constraint("Vertical", 3),
    Sketcher.Constraint("Horizontal", 4),
    Sketcher.Constraint("Vertical", 5),
    Sketcher.Constraint("Horizontal", 6),
    Sketcher.Constraint("Vertical", 7),
    Sketcher.Constraint("Horizontal", 8),
    Sketcher.Constraint("Vertical", 9),
    Sketcher.Constraint("Horizontal", 10),
    Sketcher.Constraint("Vertical", 11),
    Sketcher.Constraint("Vertical", 12),
    Sketcher.Constraint("Horizontal", 13),
    Sketcher.Constraint("Vertical", 14),
    Sketcher.Constraint("Horizontal", 15),
    Sketcher.Constraint("Symmetric", 0, 2, 8, 2, -1, 1),
    Sketcher.Constraint("Symmetric", 2, 2, 10, 2, -1, 1),
    Sketcher.Constraint("Symmetric", 5, 2, 12, 2, -1, 1),
    Sketcher.Constraint("Symmetric", 7, 2, 14, 2, -1, 1),
    Sketcher.Constraint("Symmetric", 7, 2, 8, 2, -2),
    Sketcher.Constraint("Symmetric", 5, 2, 10, 2, -2),
    Sketcher.Constraint("DistanceX", 0, 2, 0, 1, 11.0),
    Sketcher.Constraint("DistanceY", 1, 1, 1, 2, 8.0),
    Sketcher.Constraint("DistanceY", 0, 2, -1, 1, 33.0),
    Sketcher.Constraint("DistanceX", 4, 2, 8, 2, 176.0),
])
sketch9.setExpression("Constraints[38]", "Params.sketch9_width")
sketch9.setExpression("Constraints[39]", "Params.sketch9_height")
pad3 = body.newObject("PartDesign::Pad", "Pad002")
pad3.Profile = sketch9
pad3.setExpression("Length", "Params.pad3_length")
pad3.Reversed = True

# Sketch on XZ plane
sketch10 = body.newObject("Sketcher::SketchObject", "Sketch009")
sketch10.AttachmentSupport = (doc.getObject("XZ_Plane"), [""])
sketch10.MapMode = "FlatFace"
sketch10.AttachmentOffset = App.Placement(Vector(0, 0, 35.9), App.Rotation())
sketch10.addGeometry([
    Part.LineSegment(Vector(-56, 26, 0), Vector(-76, 26, 0)),  # 0
    Part.LineSegment(Vector(-76, 26, 0), Vector(-69.9, 17.5, 0)),  # 1
    Part.ArcOfCircle(Part.Circle(Vector(-66, 17.5, 0), Vector(0, 0, 1), 3.9), math.radians(0), math.radians(180)),  # 2
    Part.LineSegment(Vector(-62.1, 17.5, 0), Vector(-56, 26, 0)),  # 3
    Part.LineSegment(Vector(-23, 26, 0), Vector(-43, 26, 0)),  # 4
    Part.LineSegment(Vector(-43, 26, 0), Vector(-36.9, 17.5, 0)),  # 5
    Part.ArcOfCircle(Part.Circle(Vector(-33, 17.5, 0), Vector(0, 0, 1), 3.9), math.radians(0), math.radians(180)),  # 6
    Part.LineSegment(Vector(-29.1, 17.5, 0), Vector(-23, 26, 0)),  # 7
    Part.LineSegment(Vector(10, 26, 0), Vector(-10, 26, 0)),  # 8
    Part.LineSegment(Vector(-10, 26, 0), Vector(-3.9, 17.5, 0)),  # 9
    Part.ArcOfCircle(Part.Circle(Vector(0, 17.5, 0), Vector(0, 0, 1), 3.9), math.radians(0), math.radians(180)),  # 10
    Part.LineSegment(Vector(3.9, 17.5, 0), Vector(10, 26, 0)),  # 11
    Part.LineSegment(Vector(43, 26, 0), Vector(23, 26, 0)),  # 12
    Part.LineSegment(Vector(23, 26, 0), Vector(29.1, 17.5, 0)),  # 13
    Part.ArcOfCircle(Part.Circle(Vector(33, 17.5, 0), Vector(0, 0, 1), 3.9), math.radians(0), math.radians(180)),  # 14
    Part.LineSegment(Vector(36.9, 17.5, 0), Vector(43, 26, 0)),  # 15
    Part.LineSegment(Vector(76, 26, 0), Vector(56, 26, 0)),  # 16
    Part.LineSegment(Vector(56, 26, 0), Vector(62.1, 17.5, 0)),  # 17
    Part.ArcOfCircle(Part.Circle(Vector(66, 17.5, 0), Vector(0, 0, 1), 3.9), math.radians(0), math.radians(180)),  # 18
    Part.LineSegment(Vector(69.9, 17.5, 0), Vector(76, 26, 0)),  # 19
], False)
sketch10.addConstraint([
    Sketcher.Constraint("Coincident", 0, 2, 1, 1),
    Sketcher.Constraint("Coincident", 1, 2, 2, 2),
    Sketcher.Constraint("Coincident", 2, 1, 3, 1),
    Sketcher.Constraint("Coincident", 3, 2, 0, 1),
    Sketcher.Constraint("Coincident", 4, 2, 5, 1),
    Sketcher.Constraint("Coincident", 5, 2, 6, 2),
    Sketcher.Constraint("Coincident", 6, 1, 7, 1),
    Sketcher.Constraint("Coincident", 7, 2, 4, 1),
    Sketcher.Constraint("Coincident", 8, 2, 9, 1),
    Sketcher.Constraint("Coincident", 9, 2, 10, 2),
    Sketcher.Constraint("Coincident", 10, 1, 11, 1),
    Sketcher.Constraint("Coincident", 11, 2, 8, 1),
    Sketcher.Constraint("Coincident", 12, 2, 13, 1),
    Sketcher.Constraint("Coincident", 13, 2, 14, 2),
    Sketcher.Constraint("Coincident", 14, 1, 15, 1),
    Sketcher.Constraint("Coincident", 15, 2, 12, 1),
    Sketcher.Constraint("Coincident", 16, 2, 17, 1),
    Sketcher.Constraint("Coincident", 17, 2, 18, 2),
    Sketcher.Constraint("Coincident", 18, 1, 19, 1),
    Sketcher.Constraint("Coincident", 19, 2, 16, 1),
    Sketcher.Constraint("Horizontal", 0),
    Sketcher.Constraint("Horizontal", 4),
    Sketcher.Constraint("Horizontal", 8),
    Sketcher.Constraint("Horizontal", 12),
    Sketcher.Constraint("Horizontal", 16),
    Sketcher.Constraint("Equal", 2, 6),
    Sketcher.Constraint("Equal", 6, 10),
    Sketcher.Constraint("Equal", 10, 14),
    Sketcher.Constraint("Equal", 14, 18),
    Sketcher.Constraint("Symmetric", 6, 3, 14, 3, -2),
    Sketcher.Constraint("Symmetric", 2, 3, 18, 3, -2),
    Sketcher.Constraint("Symmetric", 9, 2, 10, 1, -2),
    Sketcher.Constraint("Symmetric", 7, 2, 12, 2, -2),
    Sketcher.Constraint("Symmetric", 3, 2, 16, 2, -2),
    Sketcher.Constraint("Parallel", 1, 5),
    Sketcher.Constraint("Parallel", 3, 7),
    Sketcher.Constraint("Parallel", 5, 9),
    Sketcher.Constraint("Parallel", 7, 11),
    Sketcher.Constraint("Parallel", 9, 13),
    Sketcher.Constraint("Parallel", 11, 15),
    Sketcher.Constraint("Parallel", 13, 17),
    Sketcher.Constraint("Parallel", 15, 19),
    Sketcher.Constraint("Horizontal", 2, 3, 6, 3),
    Sketcher.Constraint("Horizontal", 6, 3, 10, 3),
    Sketcher.Constraint("Horizontal", 18, 3, 1, 2),
    Sketcher.Constraint("Horizontal", 1, 2, 2, 1),
    Sketcher.Constraint("Horizontal", 3, 2, 4, 2),
    Sketcher.Constraint("Horizontal", 2, 1, 5, 2),
    Sketcher.Constraint("Horizontal", 5, 2, 6, 1),
    Sketcher.Constraint("Horizontal", 7, 2, 8, 2),
    Sketcher.Constraint("Horizontal", 6, 1, 9, 2),
    Sketcher.Constraint("Horizontal", 10, 1, 13, 2),
    Sketcher.Constraint("Horizontal", 13, 2, 14, 1),
    Sketcher.Constraint("Horizontal", 17, 2, 18, 1),
    Sketcher.Constraint("Radius", 2, 3.9),
    Sketcher.Constraint("DistanceX", 2, 3, -1, 1, 66.0),
    Sketcher.Constraint("DistanceX", 6, 3, -1, 1, 33.0),
    Sketcher.Constraint("DistanceY", -1, 1, 0, 2, 26.0),
    Sketcher.Constraint("DistanceX", 0, 2, 0, 1, 20.04),
    Sketcher.Constraint("DistanceY", -1, 1, 2, 3, 17.5),
])
sketch10.setExpression("Constraints[54]", "Params.sketch10_radius")
sketch10.setExpression("Constraints[58]", "Params.sketch10_width")
pocket7 = body.newObject("PartDesign::Pocket", "Pocket006")
pocket7.Profile = sketch10
pocket7.setExpression("Length", "Params.pocket7_length")

# Sketch on XZ plane
sketch11 = body.newObject("Sketcher::SketchObject", "Sketch010")
sketch11.AttachmentSupport = (doc.getObject("XZ_Plane"), [""])
sketch11.MapMode = "FlatFace"
sketch11.AttachmentOffset = App.Placement(Vector(0, 0, -33), App.Rotation())
sketch11.addGeometry([
    Part.Circle(Vector(89, 30, 0), Vector(0, 0, 1), 0.45),
    Part.Circle(Vector(-89, 30, 0), Vector(0, 0, 1), 0.45),
], False)
sketch11.addConstraint([
    Sketcher.Constraint("Equal", 0, 1),
    Sketcher.Constraint("Symmetric", 0, 3, 1, 3, -2),
    Sketcher.Constraint("Diameter", 0, 0.9),
    Sketcher.Constraint("DistanceX", -1, 1, 0, 3, 89.0),
    Sketcher.Constraint("DistanceY", -1, 1, 0, 3, 30.0),
])
sketch11.setExpression("Constraints[2]", "Params.sketch11_diameter")
pocket8 = body.newObject("PartDesign::Pocket", "Pocket007")
pocket8.Profile = sketch11
pocket8.Type = "ThroughAll"
pocket8.Reversed = True

doc.recompute()
